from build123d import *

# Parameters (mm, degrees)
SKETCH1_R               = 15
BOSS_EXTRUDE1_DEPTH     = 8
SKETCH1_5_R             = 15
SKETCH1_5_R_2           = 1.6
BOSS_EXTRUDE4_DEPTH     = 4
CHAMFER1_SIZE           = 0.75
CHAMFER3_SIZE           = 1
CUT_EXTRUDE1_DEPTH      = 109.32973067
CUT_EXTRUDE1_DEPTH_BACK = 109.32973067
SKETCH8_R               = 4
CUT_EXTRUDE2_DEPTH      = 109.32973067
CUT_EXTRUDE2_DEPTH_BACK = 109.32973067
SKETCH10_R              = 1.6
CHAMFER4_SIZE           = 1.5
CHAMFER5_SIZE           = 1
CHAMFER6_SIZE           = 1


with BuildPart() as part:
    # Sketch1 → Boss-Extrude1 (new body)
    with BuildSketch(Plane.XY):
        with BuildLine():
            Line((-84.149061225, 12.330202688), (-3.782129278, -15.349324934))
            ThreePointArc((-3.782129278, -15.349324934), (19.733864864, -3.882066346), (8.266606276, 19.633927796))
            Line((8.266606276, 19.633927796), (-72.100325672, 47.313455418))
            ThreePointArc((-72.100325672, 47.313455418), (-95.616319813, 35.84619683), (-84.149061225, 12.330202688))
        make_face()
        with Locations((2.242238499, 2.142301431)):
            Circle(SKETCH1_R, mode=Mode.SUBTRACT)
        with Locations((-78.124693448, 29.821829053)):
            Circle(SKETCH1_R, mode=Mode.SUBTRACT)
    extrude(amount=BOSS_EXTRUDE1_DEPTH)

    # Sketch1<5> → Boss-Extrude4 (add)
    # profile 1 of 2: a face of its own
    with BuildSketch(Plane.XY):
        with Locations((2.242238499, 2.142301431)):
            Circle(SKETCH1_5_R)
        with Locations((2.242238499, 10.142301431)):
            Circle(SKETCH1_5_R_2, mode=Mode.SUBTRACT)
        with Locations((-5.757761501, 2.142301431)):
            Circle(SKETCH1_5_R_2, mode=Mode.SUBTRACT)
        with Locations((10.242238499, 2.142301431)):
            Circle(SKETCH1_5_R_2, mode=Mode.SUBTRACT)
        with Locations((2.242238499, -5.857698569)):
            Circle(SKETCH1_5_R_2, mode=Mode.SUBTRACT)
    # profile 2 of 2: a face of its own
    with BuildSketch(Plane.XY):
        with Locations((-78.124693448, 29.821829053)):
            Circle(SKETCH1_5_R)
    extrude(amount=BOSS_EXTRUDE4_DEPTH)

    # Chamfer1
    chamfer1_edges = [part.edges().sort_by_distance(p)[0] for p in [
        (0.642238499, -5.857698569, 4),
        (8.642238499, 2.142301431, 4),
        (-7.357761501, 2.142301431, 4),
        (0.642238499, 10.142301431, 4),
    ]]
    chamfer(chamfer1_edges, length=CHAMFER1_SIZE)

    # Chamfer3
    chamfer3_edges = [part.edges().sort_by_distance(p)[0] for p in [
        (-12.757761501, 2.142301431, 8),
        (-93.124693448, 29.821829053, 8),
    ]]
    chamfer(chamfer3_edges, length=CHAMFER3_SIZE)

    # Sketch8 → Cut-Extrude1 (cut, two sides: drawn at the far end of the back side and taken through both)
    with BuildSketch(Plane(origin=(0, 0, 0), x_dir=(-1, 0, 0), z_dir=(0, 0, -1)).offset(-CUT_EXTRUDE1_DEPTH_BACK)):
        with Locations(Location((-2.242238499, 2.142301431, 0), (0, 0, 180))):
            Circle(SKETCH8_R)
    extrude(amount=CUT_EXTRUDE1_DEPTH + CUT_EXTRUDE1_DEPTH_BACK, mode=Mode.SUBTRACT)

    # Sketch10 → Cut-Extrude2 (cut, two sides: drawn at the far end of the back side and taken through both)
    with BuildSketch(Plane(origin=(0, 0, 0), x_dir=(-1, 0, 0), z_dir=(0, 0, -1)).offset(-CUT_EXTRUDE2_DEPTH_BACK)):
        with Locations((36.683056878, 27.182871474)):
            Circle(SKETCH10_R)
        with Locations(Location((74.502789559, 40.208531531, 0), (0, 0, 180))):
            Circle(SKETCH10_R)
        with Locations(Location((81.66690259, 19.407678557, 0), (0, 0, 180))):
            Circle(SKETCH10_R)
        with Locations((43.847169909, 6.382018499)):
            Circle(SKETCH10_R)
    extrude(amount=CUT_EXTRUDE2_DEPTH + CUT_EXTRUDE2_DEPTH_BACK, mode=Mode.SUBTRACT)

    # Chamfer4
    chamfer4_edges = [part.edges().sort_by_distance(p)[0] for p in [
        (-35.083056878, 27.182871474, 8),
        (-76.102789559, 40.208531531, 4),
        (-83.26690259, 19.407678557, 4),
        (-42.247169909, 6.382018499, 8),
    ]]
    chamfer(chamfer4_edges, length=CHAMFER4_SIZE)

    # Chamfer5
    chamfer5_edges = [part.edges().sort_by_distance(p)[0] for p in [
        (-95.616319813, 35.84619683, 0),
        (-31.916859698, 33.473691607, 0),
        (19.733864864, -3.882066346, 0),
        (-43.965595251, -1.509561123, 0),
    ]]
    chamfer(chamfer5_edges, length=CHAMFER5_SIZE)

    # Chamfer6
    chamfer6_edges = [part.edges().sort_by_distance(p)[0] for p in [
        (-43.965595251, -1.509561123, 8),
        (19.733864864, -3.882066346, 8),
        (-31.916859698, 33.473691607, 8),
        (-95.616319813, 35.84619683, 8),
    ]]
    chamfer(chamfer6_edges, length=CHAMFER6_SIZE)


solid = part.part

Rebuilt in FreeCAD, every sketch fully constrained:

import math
import FreeCAD as App
import Part
import Sketcher

V = App.Vector


def edges_at(feature, points):
    """Names of the edges that pass closest to the given points."""
    edges = feature.Shape.Edges
    near = lambda p: min(range(len(edges)), key=lambda i: edges[i].distToShape(Part.Vertex(*p))[0])
    return sorted({f"Edge{near(p) + 1}" for p in points})

doc = App.newDocument("Part")
body = doc.addObject("PartDesign::Body", "Body")

sketch1 = body.newObject("Sketcher::SketchObject", "Sketch")
sketch1.AttachmentSupport = (doc.getObject("XY_Plane"), [""])
sketch1.MapMode = "FlatFace"
sketch1.addGeometry(Part.LineSegment(V(-84.149061, 12.330203, 0), V(-3.782129, -15.349325, 0)), False)
sketch1.addGeometry(Part.ArcOfCircle(Part.Circle(V(2.242238, 2.142301, 0), V(0, 0, 1), 18.5), math.radians(-109.004445), math.radians(70.995555)), False)
sketch1.addGeometry(Part.LineSegment(V(8.266606, 19.633928, 0), V(-72.100326, 47.313455, 0)), False)
sketch1.addGeometry(Part.ArcOfCircle(Part.Circle(V(-78.124693, 29.821829, 0), V(0, 0, 1), 18.5), math.radians(70.995555), math.radians(250.995555)), False)
sketch1.addGeometry(Part.Circle(V(2.242238, 2.142301, 0), V(0, 0, 1), 15), False)
sketch1.addGeometry(Part.Circle(V(-78.124693, 29.821829, 0), V(0, 0, 1), 15), False)
sketch1.addConstraint(Sketcher.Constraint("Tangent", 0, 2, 1, 1))
sketch1.addConstraint(Sketcher.Constraint("Tangent", 1, 2, 2, 1))
sketch1.addConstraint(Sketcher.Constraint("Tangent", 2, 2, 3, 1))
sketch1.addConstraint(Sketcher.Constraint("Tangent", 3, 2, 0, 1))
sketch1.addConstraint(Sketcher.Constraint("Coincident", 4, 3, 1, 3))
sketch1.addConstraint(Sketcher.Constraint("Coincident", 5, 3, 3, 3))
sketch1.addConstraint(Sketcher.Constraint("Equal", 1, 3))
sketch1.addConstraint(Sketcher.Constraint("Equal", 4, 5))
sketch1.addConstraint(Sketcher.Constraint("Diameter", 4, 30.0))
sketch1.addConstraint(Sketcher.Constraint("Radius", 1, 18.5))
sketch1.addConstraint(Sketcher.Constraint("Distance", 0, 85.0))
sketch1.addConstraint(Sketcher.Constraint("DistanceY", -1, 1, 1, 3, 2.142301))
sketch1.addConstraint(Sketcher.Constraint("DistanceX", 3, 3, 1, 2, 86.3913))
sketch1.addConstraint(Sketcher.Constraint("DistanceX", -1, 1, 1, 3, 2.242238))
pad1 = body.newObject("PartDesign::Pad", "Pad")
pad1.Profile = sketch1
pad1.Length = 8

sketch2 = body.newObject("Sketcher::SketchObject", "Sketch001")
sketch2.AttachmentSupport = (doc.getObject("XY_Plane"), [""])
sketch2.MapMode = "FlatFace"
sketch2.addGeometry(Part.Circle(V(2.242238, 2.142301, 0), V(0, 0, 1), 15), False)
sketch2.addGeometry(Part.Circle(V(2.242238, -5.857699, 0), V(0, 0, 1), 1.6), False)
sketch2.addGeometry(Part.Circle(V(-5.757762, 2.142301, 0), V(0, 0, 1), 1.6), False)
sketch2.addGeometry(Part.Circle(V(10.242238, 2.142301, 0), V(0, 0, 1), 1.6), False)
sketch2.addGeometry(Part.Circle(V(2.242238, 10.142301, 0), V(0, 0, 1), 1.6), False)
sketch2.addGeometry(Part.Circle(V(-78.124693, 29.821829, 0), V(0, 0, 1), 15), False)
sketch2.addConstraint(Sketcher.Constraint("Equal", 1, 2))
sketch2.addConstraint(Sketcher.Constraint("Equal", 2, 3))
sketch2.addConstraint(Sketcher.Constraint("Equal", 3, 4))
sketch2.addConstraint(Sketcher.Constraint("Equal", 0, 5))
sketch2.addConstraint(Sketcher.Constraint("Horizontal", 0, 3, 2, 3))
sketch2.addConstraint(Sketcher.Constraint("Horizontal", 2, 3, 3, 3))
sketch2.addConstraint(Sketcher.Constraint("Vertical", 0, 3, 1, 3))
sketch2.addConstraint(Sketcher.Constraint("Vertical", 1, 3, 4, 3))
sketch2.addConstraint(Sketcher.Constraint("Diameter", 0, 30.0))
sketch2.addConstraint(Sketcher.Constraint("Diameter", 1, 3.2))
sketch2.addConstraint(Sketcher.Constraint("DistanceY", 1, 3, 0, 3, 8.0))
sketch2.addConstraint(Sketcher.Constraint("DistanceX", 2, 3, 0, 3, 8.0))
sketch2.addConstraint(Sketcher.Constraint("DistanceX", 0, 3, 3, 3, 8.0))
sketch2.addConstraint(Sketcher.Constraint("DistanceY", 0, 3, 4, 3, 8.0))
sketch2.addConstraint(Sketcher.Constraint("DistanceY", -1, 1, 0, 3, 2.142301))
sketch2.addConstraint(Sketcher.Constraint("DistanceX", -1, 1, 0, 3, 2.242238))
sketch2.addConstraint(Sketcher.Constraint("DistanceY", -1, 1, 5, 3, 29.821829))
sketch2.addConstraint(Sketcher.Constraint("DistanceX", 5, 3, 2, 3, 72.366932))
pad2 = body.newObject("PartDesign::Pad", "Pad001")
pad2.Profile = sketch2
pad2.Length = 4
doc.recompute()

chamfer = body.newObject("PartDesign::Chamfer", "Chamfer")
chamfer.Base = (pad2, edges_at(pad2, [
    (0.642, -5.858, 4),
    (8.642, 2.142, 4),
    (-7.358, 2.142, 4),
    (0.642, 10.142, 4),
]))
chamfer.Size = 0.75
doc.recompute()

chamfer2 = body.newObject("PartDesign::Chamfer", "Chamfer001")
chamfer2.Base = (chamfer, edges_at(chamfer, [(-12.758, 2.142, 8), (-93.125, 29.822, 8)]))
chamfer2.Size = 1

sketch3 = body.newObject("Sketcher::SketchObject", "Sketch002")
sketch3.AttachmentSupport = (doc.getObject("XY_Plane"), [""])
sketch3.MapMode = "FlatFace"
sketch3.addGeometry(Part.Circle(V(2.242238, 2.142301, 0), V(0, 0, 1), 4), False)
sketch3.addConstraint(Sketcher.Constraint("Diameter", 0, 8.0))
sketch3.addConstraint(Sketcher.Constraint("DistanceY", -1, 1, 0, 3, 2.142301))
sketch3.addConstraint(Sketcher.Constraint("DistanceX", -1, 1, 0, 3, 2.242238))
pocket1 = body.newObject("PartDesign::Pocket", "Pocket")
pocket1.Profile = sketch3
pocket1.Type = "ThroughAll"
pocket1.Midplane = True

sketch4 = body.newObject("Sketcher::SketchObject", "Sketch003")
sketch4.AttachmentSupport = (doc.getObject("XY_Plane"), [""])
sketch4.MapMode = "FlatFace"
sketch4.addGeometry(Part.Circle(V(-36.683057, 27.182871, 0), V(0, 0, 1), 1.6), False)
sketch4.addGeometry(Part.Circle(V(-74.50279, 40.208532, 0), V(0, 0, 1), 1.6), False)
sketch4.addGeometry(Part.Circle(V(-81.666903, 19.407679, 0), V(0, 0, 1), 1.6), False)
sketch4.addGeometry(Part.Circle(V(-43.84717, 6.382018, 0), V(0, 0, 1), 1.6), False)
sketch4.addConstraint(Sketcher.Constraint("Equal", 0, 1))
sketch4.addConstraint(Sketcher.Constraint("Equal", 1, 2))
sketch4.addConstraint(Sketcher.Constraint("Equal", 2, 3))
sketch4.addConstraint(Sketcher.Constraint("Diameter", 0, 3.2))
sketch4.addConstraint(Sketcher.Constraint("DistanceY", -1, 1, 0, 3, 27.182871))
sketch4.addConstraint(Sketcher.Constraint("DistanceX", 1, 3, -1, 1, 74.50279))
sketch4.addConstraint(Sketcher.Constraint("DistanceY", -1, 1, 1, 3, 40.208532))
sketch4.addConstraint(Sketcher.Constraint("DistanceY", -1, 1, 2, 3, 19.407679))
sketch4.addConstraint(Sketcher.Constraint("DistanceX", 3, 3, -1, 1, 43.84717))
sketch4.addConstraint(Sketcher.Constraint("DistanceY", -1, 1, 3, 3, 6.382018))
sketch4.addConstraint(Sketcher.Constraint("DistanceX", 0, 3, -1, 1, 36.683057))
sketch4.addConstraint(Sketcher.Constraint("DistanceX", 2, 3, -1, 1, 81.666903))
pocket2 = body.newObject("PartDesign::Pocket", "Pocket001")
pocket2.Profile = sketch4
pocket2.Type = "ThroughAll"
pocket2.Midplane = True
doc.recompute()

chamfer3 = body.newObject("PartDesign::Chamfer", "Chamfer002")
chamfer3.Base = (pocket2, edges_at(pocket2, [
    (-35.083, 27.183, 8),
    (-76.103, 40.209, 4),
    (-83.267, 19.408, 4),
    (-42.247, 6.382, 8),
]))
chamfer3.Size = 1.5
doc.recompute()

chamfer4 = body.newObject("PartDesign::Chamfer", "Chamfer003")
chamfer4.Base = (chamfer3, edges_at(chamfer3, [
    (-95.616, 35.846, 0),
    (-31.917, 33.474, 0),
    (19.734, -3.882, 0),
    (-43.966, -1.51, 0),
]))
chamfer4.Size = 1
doc.recompute()

chamfer5 = body.newObject("PartDesign::Chamfer", "Chamfer004")
chamfer5.Base = (chamfer4, edges_at(chamfer4, [
    (-43.966, -1.51, 8),
    (19.734, -3.882, 8),
    (-31.917, 33.474, 8),
    (-95.616, 35.846, 8),
]))
chamfer5.Size = 1

doc.recompute()
